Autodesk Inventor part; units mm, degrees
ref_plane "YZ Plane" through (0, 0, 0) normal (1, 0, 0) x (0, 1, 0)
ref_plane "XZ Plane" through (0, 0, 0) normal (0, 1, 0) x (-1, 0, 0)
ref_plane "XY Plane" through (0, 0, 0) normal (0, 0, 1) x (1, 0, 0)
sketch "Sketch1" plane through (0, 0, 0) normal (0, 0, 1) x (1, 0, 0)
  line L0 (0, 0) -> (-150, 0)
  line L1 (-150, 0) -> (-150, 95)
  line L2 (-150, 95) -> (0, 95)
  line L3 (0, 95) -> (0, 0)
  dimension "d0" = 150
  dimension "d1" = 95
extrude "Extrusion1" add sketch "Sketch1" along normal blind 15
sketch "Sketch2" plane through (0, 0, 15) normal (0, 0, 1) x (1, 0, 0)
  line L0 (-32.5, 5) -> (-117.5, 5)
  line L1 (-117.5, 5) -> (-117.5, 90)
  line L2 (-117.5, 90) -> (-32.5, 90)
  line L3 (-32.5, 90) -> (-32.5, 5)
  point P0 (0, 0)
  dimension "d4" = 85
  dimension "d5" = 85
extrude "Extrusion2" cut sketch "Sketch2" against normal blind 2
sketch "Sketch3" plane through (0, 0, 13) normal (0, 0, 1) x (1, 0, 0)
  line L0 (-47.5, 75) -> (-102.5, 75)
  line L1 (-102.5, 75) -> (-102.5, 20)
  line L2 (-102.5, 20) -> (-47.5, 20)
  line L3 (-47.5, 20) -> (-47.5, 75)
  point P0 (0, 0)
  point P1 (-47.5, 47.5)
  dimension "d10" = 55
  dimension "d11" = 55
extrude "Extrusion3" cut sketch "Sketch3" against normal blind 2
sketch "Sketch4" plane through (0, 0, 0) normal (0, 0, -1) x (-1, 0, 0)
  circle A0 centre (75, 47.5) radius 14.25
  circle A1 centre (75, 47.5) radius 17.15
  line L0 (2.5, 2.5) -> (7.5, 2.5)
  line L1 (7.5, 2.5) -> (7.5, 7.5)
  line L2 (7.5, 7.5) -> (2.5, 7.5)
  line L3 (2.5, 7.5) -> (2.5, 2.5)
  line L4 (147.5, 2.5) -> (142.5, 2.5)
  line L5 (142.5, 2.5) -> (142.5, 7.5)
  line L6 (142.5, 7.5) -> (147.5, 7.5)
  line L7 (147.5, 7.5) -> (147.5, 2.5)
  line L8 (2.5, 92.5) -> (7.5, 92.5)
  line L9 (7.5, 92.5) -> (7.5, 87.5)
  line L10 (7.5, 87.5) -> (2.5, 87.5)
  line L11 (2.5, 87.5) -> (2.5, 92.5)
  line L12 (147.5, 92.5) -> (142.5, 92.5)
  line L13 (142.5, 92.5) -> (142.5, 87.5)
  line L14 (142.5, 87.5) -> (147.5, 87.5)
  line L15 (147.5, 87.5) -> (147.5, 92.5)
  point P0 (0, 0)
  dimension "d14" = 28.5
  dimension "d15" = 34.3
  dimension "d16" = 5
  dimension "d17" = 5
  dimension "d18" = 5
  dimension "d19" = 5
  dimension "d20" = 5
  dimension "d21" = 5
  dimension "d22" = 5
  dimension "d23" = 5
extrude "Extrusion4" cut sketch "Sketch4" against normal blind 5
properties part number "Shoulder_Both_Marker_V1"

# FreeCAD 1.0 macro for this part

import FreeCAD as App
import Part
import Sketcher

V = App.Vector

doc = App.newDocument("Part")
body = doc.addObject("PartDesign::Body", "Body")

# Sketch on XY plane
sketch1 = body.newObject("Sketcher::SketchObject", "Sketch")
sketch1.AttachmentSupport = (doc.getObject("XY_Plane"), [""])
sketch1.MapMode = "FlatFace"
sketch1.addGeometry([
    Part.LineSegment(V(-150, 0, 0), V(0, 0, 0)),
    Part.LineSegment(V(0, 0, 0), V(0, 95, 0)),
    Part.LineSegment(V(0, 95, 0), V(-150, 95, 0)),
    Part.LineSegment(V(-150, 95, 0), V(-150, 0, 0)),
], False)
sketch1.addConstraint([
    Sketcher.Constraint("Coincident", 0, 2, 1, 1),
    Sketcher.Constraint("Coincident", 1, 2, 2, 1),
    Sketcher.Constraint("Coincident", 2, 2, 3, 1),
    Sketcher.Constraint("Coincident", 3, 2, 0, 1),
    Sketcher.Constraint("Horizontal", 0),
    Sketcher.Constraint("Vertical", 1),
    Sketcher.Constraint("Horizontal", 2),
    Sketcher.Constraint("Vertical", 3),
    Sketcher.Constraint("Coincident", 0, 2, -1, 1),
    Sketcher.Constraint("DistanceX", 0, 1, 0, 2, 150.0),
    Sketcher.Constraint("DistanceY", 1, 1, 1, 2, 95.0),
])
pad1 = body.newObject("PartDesign::Pad", "Pad")
pad1.Profile = sketch1
pad1.Length = 15

# Sketch on XY plane
sketch2 = body.newObject("Sketcher::SketchObject", "Sketch001")
sketch2.AttachmentSupport = (doc.getObject("XY_Plane"), [""])
sketch2.MapMode = "FlatFace"
sketch2.AttachmentOffset = App.Placement(V(0, 0, 15), App.Rotation())
sketch2.addGeometry([
    Part.LineSegment(V(-118, 5, 0), V(-32, 5, 0)),
    Part.LineSegment(V(-32, 5, 0), V(-32, 90, 0)),
    Part.LineSegment(V(-32, 90, 0), V(-118, 90, 0)),
    Part.LineSegment(V(-118, 90, 0), V(-118, 5, 0)),
], False)
sketch2.addConstraint([
    Sketcher.Constraint("Coincident", 0, 2, 1, 1),
    Sketcher.Constraint("Coincident", 1, 2, 2, 1),
    Sketcher.Constraint("Coincident", 2, 2, 3, 1),
    Sketcher.Constraint("Coincident", 3, 2, 0, 1),
    Sketcher.Constraint("Horizontal", 0),
    Sketcher.Constraint("Vertical", 1),
    Sketcher.Constraint("Horizontal", 2),
    Sketcher.Constraint("Vertical", 3),
    Sketcher.Constraint("Equal", 2, 1),
    Sketcher.Constraint("DistanceX", 0, 1, 0, 2, 85.0),
    Sketcher.Constraint("DistanceY", -1, 1, 0, 2, 5.0),
    Sketcher.Constraint("DistanceX", 0, 2, -1, 1, 32.5),
])
pocket1 = body.newObject("PartDesign::Pocket", "Pocket")
pocket1.Profile = sketch2
pocket1.Length = 2

# Sketch on XY plane
sketch3 = body.newObject("Sketcher::SketchObject", "Sketch002")
sketch3.AttachmentSupport = (doc.getObject("XY_Plane"), [""])
sketch3.MapMode = "FlatFace"
sketch3.AttachmentOffset = App.Placement(V(0, 0, 13), App.Rotation())
sketch3.addGeometry([
    Part.LineSegment(V(-48, 20, 0), V(-48, 75, 0)),
    Part.LineSegment(V(-48, 75, 0), V(-102, 75, 0)),
    Part.LineSegment(V(-102, 75, 0), V(-102, 20, 0)),
    Part.LineSegment(V(-102, 20, 0), V(-48, 20, 0)),
], False)
sketch3.addConstraint([
    Sketcher.Constraint("Coincident", 0, 2, 1, 1),
    Sketcher.Constraint("Coincident", 1, 2, 2, 1),
    Sketcher.Constraint("Coincident", 2, 2, 3, 1),
    Sketcher.Constraint("Coincident", 3, 2, 0, 1),
    Sketcher.Constraint("Vertical", 0),
    Sketcher.Constraint("Horizontal", 1),
    Sketcher.Constraint("Vertical", 2),
    Sketcher.Constraint("Horizontal", 3),
    Sketcher.Constraint("Equal", 3, 0),
    Sketcher.Constraint("DistanceX", 1, 2, 1, 1, 55.0),
    Sketcher.Constraint("DistanceY", -1, 1, 0, 2, 75.0),
    Sketcher.Constraint("DistanceX", 0, 2, -1, 1, 47.5),
])
pocket2 = body.newObject("PartDesign::Pocket", "Pocket001")
pocket2.Profile = sketch3
pocket2.Length = 2

# Sketch on XY plane
sketch4 = body.newObject("Sketcher::SketchObject", "Sketch003")
sketch4.AttachmentSupport = (doc.getObject("XY_Plane"), [""])
sketch4.MapMode = "FlatFace"
sketch4.addGeometry([
    Part.Circle(V(-75, 48, 0), V(0, 0, 1), 17),  # 0
    Part.Circle(V(-75, 48, 0), V(0, 0, 1), 14),  # 1
    Part.LineSegment(V(-2, 8, 0), V(-2, 2, 0)),  # 2
    Part.LineSegment(V(-2, 2, 0), V(-8, 2, 0)),  # 3
    Part.LineSegment(V(-8, 2, 0), V(-8, 8, 0)),  # 4
    Part.LineSegment(V(-8, 8, 0), V(-2, 8, 0)),  # 5
    Part.LineSegment(V(-142, 2, 0), V(-148, 2, 0)),  # 6
    Part.LineSegment(V(-148, 2, 0), V(-148, 8, 0)),  # 7
    Part.LineSegment(V(-148, 8, 0), V(-142, 8, 0)),  # 8
    Part.LineSegment(V(-142, 8, 0), V(-142, 2, 0)),  # 9
    Part.LineSegment(V(-8, 92, 0), V(-2, 92, 0)),  # 10
    Part.LineSegment(V(-2, 92, 0), V(-2, 88, 0)),  # 11
    Part.LineSegment(V(-2, 88, 0), V(-8, 88, 0)),  # 12
    Part.LineSegment(V(-8, 88, 0), V(-8, 92, 0)),  # 13
    Part.LineSegment(V(-148, 88, 0), V(-148, 92, 0)),  # 14
    Part.LineSegment(V(-148, 92, 0), V(-142, 92, 0)),  # 15
    Part.LineSegment(V(-142, 92, 0), V(-142, 88, 0)),  # 16
    Part.LineSegment(V(-142, 88, 0), V(-148, 88, 0)),  # 17
], False)
sketch4.addConstraint([
    Sketcher.Constraint("Coincident", 2, 2, 3, 1),
    Sketcher.Constraint("Coincident", 3, 2, 4, 1),
    Sketcher.Constraint("Coincident", 4, 2, 5, 1),
    Sketcher.Constraint("Coincident", 5, 2, 2, 1),
    Sketcher.Constraint("Coincident", 6, 2, 7, 1),
    Sketcher.Constraint("Coincident", 7, 2, 8, 1),
    Sketcher.Constraint("Coincident", 8, 2, 9, 1),
    Sketcher.Constraint("Coincident", 9, 2, 6, 1),
    Sketcher.Constraint("Coincident", 10, 2, 11, 1),
    Sketcher.Constraint("Coincident", 11, 2, 12, 1),
    Sketcher.Constraint("Coincident", 12, 2, 13, 1),
    Sketcher.Constraint("Coincident", 13, 2, 10, 1),
    Sketcher.Constraint("Coincident", 14, 2, 15, 1),
    Sketcher.Constraint("Coincident", 15, 2, 16, 1),
    Sketcher.Constraint("Coincident", 16, 2, 17, 1),
    Sketcher.Constraint("Coincident", 17, 2, 14, 1),
    Sketcher.Constraint("Vertical", 2),
    Sketcher.Constraint("Horizontal", 3),
    Sketcher.Constraint("Vertical", 4),
    Sketcher.Constraint("Horizontal", 5),
    Sketcher.Constraint("Horizontal", 6),
    Sketcher.Constraint("Vertical", 7),
    Sketcher.Constraint("Horizontal", 8),
    Sketcher.Constraint("Vertical", 9),
    Sketcher.Constraint("Horizontal", 10),
    Sketcher.Constraint("Vertical", 11),
    Sketcher.Constraint("Horizontal", 12),
    Sketcher.Constraint("Vertical", 13),
    Sketcher.Constraint("Vertical", 14),
    Sketcher.Constraint("Horizontal", 15),
    Sketcher.Constraint("Vertical", 16),
    Sketcher.Constraint("Horizontal", 17),
    Sketcher.Constraint("Coincident", 1, 3, 0, 3),
    Sketcher.Constraint("Horizontal", 3, 2, 6, 2),
    Sketcher.Constraint("Horizontal", 5, 2, 7, 2),
    Sketcher.Constraint("Horizontal", 13, 2, 14, 2),
    Sketcher.Constraint("Horizontal", 12, 2, 16, 2),
    Sketcher.Constraint("Vertical", 5, 2, 10, 2),
    Sketcher.Constraint("Vertical", 4, 2, 12, 2),
    Sketcher.Constraint("Vertical", 7, 2, 14, 2),
    Sketcher.Constraint("Vertical", 9, 2, 15, 2),
    Sketcher.Constraint("Equal", 5, 6),
    Sketcher.Constraint("Equal", 17, 2),
    Sketcher.Constraint("Equal", 9, 11),
    Sketcher.Constraint("Diameter", 0, 34.3),
    Sketcher.Constraint("Diameter", 1, 28.5),
    Sketcher.Constraint("DistanceX", 3, 2, 3, 1, 5.0),
    Sketcher.Constraint("DistanceX", 0, 3, -1, 1, 75.0),
    Sketcher.Constraint("DistanceY", 2, 2, 0, 3, 45.0),
    Sketcher.Constraint("DistanceX", 6, 2, 3, 2, 140.0),
    Sketcher.Constraint("DistanceY", 5, 2, 10, 2, 85.0),
    Sketcher.Constraint("DistanceY", -1, 1, 0, 3, 47.5),
    Sketcher.Constraint("DistanceX", 2, 2, -1, 1, 2.5),
])
pocket3 = body.newObject("PartDesign::Pocket", "Pocket002")
pocket3.Profile = sketch4
pocket3.Length = 5
pocket3.Reversed = True

doc.recompute()
